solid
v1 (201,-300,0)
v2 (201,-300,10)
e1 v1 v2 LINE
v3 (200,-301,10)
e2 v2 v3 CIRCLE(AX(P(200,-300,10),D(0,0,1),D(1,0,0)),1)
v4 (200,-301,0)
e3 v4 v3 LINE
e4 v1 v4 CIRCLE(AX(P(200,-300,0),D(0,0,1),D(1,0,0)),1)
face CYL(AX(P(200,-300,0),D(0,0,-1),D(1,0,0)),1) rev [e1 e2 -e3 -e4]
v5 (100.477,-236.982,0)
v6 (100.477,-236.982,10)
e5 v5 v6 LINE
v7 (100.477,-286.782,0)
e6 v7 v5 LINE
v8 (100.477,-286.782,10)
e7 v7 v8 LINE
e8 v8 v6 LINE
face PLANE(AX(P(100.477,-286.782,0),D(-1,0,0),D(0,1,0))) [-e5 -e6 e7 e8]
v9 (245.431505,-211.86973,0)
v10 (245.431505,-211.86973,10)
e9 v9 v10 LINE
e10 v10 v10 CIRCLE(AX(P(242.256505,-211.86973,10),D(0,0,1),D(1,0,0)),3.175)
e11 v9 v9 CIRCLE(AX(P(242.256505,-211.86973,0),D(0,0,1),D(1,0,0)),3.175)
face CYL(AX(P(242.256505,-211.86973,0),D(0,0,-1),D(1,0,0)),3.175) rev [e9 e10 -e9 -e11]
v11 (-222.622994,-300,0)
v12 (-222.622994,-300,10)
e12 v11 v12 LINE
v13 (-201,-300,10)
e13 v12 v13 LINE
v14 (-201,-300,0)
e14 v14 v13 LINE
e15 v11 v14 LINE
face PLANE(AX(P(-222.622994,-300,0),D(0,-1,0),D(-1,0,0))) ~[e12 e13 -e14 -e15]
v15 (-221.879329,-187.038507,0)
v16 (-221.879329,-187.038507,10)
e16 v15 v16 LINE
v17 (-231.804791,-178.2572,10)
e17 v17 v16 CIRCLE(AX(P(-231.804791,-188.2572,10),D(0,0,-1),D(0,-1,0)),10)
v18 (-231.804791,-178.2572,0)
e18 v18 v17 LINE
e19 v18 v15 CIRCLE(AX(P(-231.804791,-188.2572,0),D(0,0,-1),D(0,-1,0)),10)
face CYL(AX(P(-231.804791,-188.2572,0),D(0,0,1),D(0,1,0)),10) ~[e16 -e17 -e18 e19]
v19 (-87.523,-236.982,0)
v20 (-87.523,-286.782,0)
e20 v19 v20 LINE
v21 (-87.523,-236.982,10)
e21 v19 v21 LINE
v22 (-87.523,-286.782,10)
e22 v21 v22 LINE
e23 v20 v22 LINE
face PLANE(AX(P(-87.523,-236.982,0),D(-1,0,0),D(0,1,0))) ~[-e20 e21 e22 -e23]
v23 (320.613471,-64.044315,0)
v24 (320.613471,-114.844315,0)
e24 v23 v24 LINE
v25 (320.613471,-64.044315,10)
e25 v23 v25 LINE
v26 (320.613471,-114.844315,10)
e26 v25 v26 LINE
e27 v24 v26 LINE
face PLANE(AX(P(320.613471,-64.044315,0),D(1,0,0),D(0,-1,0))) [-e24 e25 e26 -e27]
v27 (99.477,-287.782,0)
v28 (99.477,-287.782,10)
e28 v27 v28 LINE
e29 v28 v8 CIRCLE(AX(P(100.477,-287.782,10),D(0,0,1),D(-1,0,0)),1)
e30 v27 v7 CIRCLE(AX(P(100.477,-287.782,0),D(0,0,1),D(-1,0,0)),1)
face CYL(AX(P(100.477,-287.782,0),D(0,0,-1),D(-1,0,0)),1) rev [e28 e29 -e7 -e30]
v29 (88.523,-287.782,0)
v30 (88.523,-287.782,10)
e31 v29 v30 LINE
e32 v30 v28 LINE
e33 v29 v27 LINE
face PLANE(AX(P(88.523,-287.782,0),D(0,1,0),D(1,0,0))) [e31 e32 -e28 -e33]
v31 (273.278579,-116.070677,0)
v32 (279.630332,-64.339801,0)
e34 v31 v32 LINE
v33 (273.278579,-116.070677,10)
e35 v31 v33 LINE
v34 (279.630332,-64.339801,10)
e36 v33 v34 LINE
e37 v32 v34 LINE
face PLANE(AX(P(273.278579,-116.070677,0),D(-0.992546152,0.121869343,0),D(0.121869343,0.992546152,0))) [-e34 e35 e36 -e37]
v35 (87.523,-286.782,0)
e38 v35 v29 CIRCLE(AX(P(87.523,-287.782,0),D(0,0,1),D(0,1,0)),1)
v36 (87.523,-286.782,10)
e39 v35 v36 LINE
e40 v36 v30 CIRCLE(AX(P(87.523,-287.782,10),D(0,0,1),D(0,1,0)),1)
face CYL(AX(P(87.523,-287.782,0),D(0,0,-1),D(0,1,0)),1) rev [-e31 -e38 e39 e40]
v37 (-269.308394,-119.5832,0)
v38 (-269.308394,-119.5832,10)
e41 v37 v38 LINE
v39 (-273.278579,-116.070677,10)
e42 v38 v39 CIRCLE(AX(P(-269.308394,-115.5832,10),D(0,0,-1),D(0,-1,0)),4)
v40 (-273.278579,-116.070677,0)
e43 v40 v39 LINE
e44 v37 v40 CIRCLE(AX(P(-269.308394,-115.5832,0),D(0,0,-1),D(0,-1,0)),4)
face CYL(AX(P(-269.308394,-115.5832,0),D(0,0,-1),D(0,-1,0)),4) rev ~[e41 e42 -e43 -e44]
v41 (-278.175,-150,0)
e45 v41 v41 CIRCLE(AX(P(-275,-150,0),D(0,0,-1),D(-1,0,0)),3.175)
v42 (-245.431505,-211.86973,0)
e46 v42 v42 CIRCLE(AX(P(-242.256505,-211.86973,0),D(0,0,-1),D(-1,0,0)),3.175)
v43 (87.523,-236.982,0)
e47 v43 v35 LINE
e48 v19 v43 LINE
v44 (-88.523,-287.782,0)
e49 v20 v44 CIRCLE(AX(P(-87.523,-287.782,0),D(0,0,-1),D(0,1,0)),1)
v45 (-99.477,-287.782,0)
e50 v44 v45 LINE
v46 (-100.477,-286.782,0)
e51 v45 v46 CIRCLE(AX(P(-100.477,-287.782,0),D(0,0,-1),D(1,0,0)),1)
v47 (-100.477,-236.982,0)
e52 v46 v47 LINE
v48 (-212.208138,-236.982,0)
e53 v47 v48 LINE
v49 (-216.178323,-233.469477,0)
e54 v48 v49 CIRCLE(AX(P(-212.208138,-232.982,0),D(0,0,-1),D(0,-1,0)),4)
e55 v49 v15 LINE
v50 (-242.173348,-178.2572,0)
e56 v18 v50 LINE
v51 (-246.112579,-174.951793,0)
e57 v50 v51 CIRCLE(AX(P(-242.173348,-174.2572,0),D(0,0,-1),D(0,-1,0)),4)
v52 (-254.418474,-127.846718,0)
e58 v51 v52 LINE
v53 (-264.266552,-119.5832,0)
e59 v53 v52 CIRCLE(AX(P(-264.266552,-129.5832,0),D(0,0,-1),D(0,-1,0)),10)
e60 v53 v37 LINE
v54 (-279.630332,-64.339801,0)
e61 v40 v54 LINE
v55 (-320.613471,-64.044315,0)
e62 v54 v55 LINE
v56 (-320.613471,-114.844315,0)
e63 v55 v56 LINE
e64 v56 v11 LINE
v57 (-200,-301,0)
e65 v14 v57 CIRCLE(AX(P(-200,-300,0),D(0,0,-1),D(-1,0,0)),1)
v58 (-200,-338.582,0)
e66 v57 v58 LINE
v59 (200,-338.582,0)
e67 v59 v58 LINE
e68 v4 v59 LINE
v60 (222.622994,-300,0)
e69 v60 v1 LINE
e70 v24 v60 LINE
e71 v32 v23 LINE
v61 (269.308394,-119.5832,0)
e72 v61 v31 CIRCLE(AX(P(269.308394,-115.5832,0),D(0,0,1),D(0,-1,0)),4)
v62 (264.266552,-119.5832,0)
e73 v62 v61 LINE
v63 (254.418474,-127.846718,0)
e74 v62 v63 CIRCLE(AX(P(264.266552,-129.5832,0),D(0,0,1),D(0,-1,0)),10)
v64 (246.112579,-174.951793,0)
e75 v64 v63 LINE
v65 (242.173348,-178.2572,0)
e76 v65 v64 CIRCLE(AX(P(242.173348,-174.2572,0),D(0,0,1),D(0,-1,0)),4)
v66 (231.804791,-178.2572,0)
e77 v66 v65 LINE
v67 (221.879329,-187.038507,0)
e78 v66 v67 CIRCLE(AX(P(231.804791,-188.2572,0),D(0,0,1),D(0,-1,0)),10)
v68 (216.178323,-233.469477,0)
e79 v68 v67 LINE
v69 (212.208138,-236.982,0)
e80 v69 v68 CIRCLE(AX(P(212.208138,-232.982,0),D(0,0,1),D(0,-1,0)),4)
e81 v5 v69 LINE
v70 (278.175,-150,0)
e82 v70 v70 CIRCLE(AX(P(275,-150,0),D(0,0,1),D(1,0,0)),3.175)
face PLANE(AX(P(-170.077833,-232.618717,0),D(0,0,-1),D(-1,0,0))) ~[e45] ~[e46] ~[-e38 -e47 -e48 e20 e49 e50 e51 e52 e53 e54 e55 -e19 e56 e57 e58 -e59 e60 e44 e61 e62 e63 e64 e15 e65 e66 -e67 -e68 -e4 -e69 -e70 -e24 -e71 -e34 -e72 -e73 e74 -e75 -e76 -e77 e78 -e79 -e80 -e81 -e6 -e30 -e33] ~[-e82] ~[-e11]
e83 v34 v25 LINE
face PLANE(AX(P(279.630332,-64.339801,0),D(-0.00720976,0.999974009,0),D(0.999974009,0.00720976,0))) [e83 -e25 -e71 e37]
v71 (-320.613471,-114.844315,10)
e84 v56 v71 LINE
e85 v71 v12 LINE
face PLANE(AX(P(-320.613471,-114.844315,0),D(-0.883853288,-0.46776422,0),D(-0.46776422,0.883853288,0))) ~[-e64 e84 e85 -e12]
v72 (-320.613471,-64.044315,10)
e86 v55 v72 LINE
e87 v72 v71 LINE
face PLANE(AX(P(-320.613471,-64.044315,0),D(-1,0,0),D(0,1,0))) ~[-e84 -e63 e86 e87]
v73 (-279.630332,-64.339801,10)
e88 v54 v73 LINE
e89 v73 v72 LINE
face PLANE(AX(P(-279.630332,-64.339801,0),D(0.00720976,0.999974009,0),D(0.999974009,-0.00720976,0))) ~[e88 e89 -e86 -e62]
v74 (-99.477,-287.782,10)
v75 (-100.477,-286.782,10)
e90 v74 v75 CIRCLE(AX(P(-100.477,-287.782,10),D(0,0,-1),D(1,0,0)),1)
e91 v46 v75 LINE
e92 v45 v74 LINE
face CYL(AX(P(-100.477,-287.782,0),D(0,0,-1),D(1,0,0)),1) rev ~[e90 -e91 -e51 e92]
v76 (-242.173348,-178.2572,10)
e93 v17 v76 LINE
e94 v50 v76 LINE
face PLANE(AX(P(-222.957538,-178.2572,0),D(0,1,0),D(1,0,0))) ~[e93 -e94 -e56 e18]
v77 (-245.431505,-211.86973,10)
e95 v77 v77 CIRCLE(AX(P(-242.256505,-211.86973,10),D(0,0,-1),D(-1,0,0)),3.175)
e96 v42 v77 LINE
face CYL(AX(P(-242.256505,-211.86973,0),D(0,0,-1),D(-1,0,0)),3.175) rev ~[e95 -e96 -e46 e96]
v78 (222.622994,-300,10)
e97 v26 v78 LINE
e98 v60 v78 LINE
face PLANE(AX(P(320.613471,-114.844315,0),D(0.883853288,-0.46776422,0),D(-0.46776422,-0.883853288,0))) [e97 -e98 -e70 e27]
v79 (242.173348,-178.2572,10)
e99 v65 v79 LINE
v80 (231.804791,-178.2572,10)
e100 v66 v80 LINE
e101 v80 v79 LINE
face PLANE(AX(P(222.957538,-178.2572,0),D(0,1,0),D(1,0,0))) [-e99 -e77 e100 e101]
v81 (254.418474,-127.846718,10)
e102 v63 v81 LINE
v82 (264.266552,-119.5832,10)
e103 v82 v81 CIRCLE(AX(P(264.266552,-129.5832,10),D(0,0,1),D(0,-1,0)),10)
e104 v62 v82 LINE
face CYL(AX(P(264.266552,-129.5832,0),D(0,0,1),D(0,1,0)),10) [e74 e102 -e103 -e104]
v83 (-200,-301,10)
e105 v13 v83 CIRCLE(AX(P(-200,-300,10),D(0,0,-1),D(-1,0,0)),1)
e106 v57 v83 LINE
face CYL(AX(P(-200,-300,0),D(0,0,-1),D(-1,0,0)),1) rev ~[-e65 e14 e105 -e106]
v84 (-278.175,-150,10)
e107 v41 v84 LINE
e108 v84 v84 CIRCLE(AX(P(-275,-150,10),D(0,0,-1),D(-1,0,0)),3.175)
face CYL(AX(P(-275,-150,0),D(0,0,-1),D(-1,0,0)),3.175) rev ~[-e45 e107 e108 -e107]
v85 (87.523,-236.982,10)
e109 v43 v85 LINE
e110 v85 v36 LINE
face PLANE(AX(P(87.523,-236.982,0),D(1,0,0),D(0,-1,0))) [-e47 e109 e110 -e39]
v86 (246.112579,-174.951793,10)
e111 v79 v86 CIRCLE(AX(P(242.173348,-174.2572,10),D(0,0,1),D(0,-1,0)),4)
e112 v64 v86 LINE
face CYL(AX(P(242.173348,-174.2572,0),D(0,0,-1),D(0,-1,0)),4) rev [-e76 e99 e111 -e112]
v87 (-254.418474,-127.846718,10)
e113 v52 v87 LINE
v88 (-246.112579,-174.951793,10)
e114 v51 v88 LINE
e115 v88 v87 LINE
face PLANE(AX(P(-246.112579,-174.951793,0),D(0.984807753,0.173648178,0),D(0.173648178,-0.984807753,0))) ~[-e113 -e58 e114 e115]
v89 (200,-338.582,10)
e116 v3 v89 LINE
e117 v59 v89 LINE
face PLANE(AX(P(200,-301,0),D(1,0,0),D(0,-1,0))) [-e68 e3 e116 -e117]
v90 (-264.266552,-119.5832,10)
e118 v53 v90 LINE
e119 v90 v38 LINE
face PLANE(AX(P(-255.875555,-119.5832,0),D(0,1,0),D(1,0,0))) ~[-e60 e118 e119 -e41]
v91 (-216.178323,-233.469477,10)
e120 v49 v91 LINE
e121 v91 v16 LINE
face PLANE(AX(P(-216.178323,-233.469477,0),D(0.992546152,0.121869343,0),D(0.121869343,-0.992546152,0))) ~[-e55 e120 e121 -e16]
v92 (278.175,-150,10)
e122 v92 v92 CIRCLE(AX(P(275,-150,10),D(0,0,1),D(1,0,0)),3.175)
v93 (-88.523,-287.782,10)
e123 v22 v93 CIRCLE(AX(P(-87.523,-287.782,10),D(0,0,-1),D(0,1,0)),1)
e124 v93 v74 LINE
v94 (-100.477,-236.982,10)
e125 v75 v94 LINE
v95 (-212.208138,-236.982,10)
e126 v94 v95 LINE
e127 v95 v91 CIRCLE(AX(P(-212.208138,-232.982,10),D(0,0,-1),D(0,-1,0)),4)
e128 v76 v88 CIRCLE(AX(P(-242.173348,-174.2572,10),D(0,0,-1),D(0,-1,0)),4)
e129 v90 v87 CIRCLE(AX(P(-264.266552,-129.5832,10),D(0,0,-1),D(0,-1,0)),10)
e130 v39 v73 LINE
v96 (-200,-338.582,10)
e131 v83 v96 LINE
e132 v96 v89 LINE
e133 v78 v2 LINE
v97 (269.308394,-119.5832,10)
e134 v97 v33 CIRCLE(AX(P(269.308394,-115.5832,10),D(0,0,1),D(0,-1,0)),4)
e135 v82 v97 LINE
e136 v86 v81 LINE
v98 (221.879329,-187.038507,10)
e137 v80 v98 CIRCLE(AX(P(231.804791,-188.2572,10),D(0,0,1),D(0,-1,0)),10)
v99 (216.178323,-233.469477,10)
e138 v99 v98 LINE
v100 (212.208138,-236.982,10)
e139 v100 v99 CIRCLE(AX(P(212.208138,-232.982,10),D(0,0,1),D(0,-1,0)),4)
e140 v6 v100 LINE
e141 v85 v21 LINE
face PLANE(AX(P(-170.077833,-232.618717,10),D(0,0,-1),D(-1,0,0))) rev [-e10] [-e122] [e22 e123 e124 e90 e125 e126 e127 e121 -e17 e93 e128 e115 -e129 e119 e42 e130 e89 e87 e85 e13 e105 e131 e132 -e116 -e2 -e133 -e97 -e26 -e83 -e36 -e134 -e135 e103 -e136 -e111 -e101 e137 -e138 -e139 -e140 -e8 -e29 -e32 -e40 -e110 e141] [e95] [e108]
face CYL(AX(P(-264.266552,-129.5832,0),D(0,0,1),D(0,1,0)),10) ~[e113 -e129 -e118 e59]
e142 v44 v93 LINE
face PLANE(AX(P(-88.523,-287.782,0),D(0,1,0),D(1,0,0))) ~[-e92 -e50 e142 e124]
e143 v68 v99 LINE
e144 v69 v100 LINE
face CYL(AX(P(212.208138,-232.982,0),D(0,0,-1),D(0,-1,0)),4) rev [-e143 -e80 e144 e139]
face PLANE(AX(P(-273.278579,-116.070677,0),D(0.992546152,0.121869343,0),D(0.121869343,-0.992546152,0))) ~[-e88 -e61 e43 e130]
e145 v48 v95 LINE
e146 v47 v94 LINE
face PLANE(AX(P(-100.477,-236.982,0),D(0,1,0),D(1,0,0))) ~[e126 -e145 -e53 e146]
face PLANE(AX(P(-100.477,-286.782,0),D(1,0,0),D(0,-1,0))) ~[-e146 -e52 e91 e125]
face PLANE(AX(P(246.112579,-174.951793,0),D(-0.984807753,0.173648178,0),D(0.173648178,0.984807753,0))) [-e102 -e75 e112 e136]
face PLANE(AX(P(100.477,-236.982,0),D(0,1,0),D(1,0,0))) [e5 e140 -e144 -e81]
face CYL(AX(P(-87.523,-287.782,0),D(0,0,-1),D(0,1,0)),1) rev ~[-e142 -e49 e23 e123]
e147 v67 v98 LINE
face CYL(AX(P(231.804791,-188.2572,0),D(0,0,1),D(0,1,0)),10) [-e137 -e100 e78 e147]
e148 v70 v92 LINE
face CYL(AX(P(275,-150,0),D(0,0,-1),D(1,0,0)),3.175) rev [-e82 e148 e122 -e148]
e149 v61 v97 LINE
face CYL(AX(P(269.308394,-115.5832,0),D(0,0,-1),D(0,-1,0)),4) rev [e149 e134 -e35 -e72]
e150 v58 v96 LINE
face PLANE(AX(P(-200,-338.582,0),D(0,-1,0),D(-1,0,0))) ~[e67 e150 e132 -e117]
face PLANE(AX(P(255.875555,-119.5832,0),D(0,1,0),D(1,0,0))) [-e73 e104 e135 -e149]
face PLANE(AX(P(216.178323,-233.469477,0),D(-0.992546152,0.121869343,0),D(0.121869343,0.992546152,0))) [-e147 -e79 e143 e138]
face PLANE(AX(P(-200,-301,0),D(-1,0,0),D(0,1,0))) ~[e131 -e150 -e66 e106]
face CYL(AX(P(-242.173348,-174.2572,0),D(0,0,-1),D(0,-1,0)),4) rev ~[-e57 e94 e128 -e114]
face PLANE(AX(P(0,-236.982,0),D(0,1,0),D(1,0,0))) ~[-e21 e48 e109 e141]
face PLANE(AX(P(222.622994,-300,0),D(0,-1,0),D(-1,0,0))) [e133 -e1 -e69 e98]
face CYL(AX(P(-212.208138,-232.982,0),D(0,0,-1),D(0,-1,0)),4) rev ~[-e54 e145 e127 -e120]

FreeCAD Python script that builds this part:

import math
import FreeCAD as App
import Part
import Sketcher

V = App.Vector
Q = App.Units.Quantity


def edges_at(feature, points):
    """Names of the edges that pass closest to the given points."""
    edges = feature.Shape.Edges
    near = lambda p: min(range(len(edges)), key=lambda i: edges[i].distToShape(Part.Vertex(*p))[0])
    return sorted({f"Edge{near(p) + 1}" for p in points})

doc = App.newDocument("Part")
body = doc.addObject("PartDesign::Body", "Body")

sketch1 = doc.addObject("Sketcher::SketchObject", "Sketch")
body.addObject(sketch1)
sketch1.AttachmentSupport = (doc.XY_Plane, [""])
sketch1.MapMode = "FlatFace"
sketch1.addGeometry(Part.LineSegment(V(222.6, -300, 0), V(320.6, -114.8, 0)), False)
sketch1.addGeometry(Part.LineSegment(V(320.6, -114.8, 0), V(320.6, -64, 0)), False)
sketch1.addGeometry(Part.LineSegment(V(320.6, -64, 0), V(279.6, -64.3, 0)), False)
sketch1.addGeometry(Part.LineSegment(V(279.6, -64.3, 0), V(273.3, -116.1, 0)), False)
sketch1.addGeometry(Part.ArcOfCircle(Part.Circle(V(269.3, -115.6, 0), V(0, 0, 1), 4), math.radians(-90), math.radians(-7)), False)
sketch1.addGeometry(Part.LineSegment(V(269.3, -119.6, 0), V(255.9, -119.6, 0)), False)
sketch1.addGeometry(Part.LineSegment(V(255.9, -119.6, 0), V(246.1, -175, 0)), False)
sketch1.addGeometry(Part.ArcOfCircle(Part.Circle(V(242.2, -174.3, 0), V(0, 0, 1), 4), math.radians(-90), math.radians(-10)), False)
sketch1.addGeometry(Part.LineSegment(V(242.2, -178.3, 0), V(223, -178.3, 0)), False)
sketch1.addGeometry(Part.LineSegment(V(223, -178.3, 0), V(216.2, -233.5, 0)), False)
sketch1.addGeometry(Part.ArcOfCircle(Part.Circle(V(212.2, -233, 0), V(0, 0, 1), 4), math.radians(-90), math.radians(-7)), False)
sketch1.addGeometry(Part.LineSegment(V(212.2, -237, 0), V(100.5, -237, 0)), False)
sketch1.addGeometry(Part.LineSegment(V(100.5, -237, 0), V(100.5, -286.8, 0)), False)
sketch1.addGeometry(Part.ArcOfCircle(Part.Circle(V(100.5, -287.8, 0), V(0, 0, 1), 1), math.radians(180), math.radians(450)), False)
sketch1.addGeometry(Part.LineSegment(V(99.5, -287.8, 0), V(88.5, -287.8, 0)), False)
sketch1.addGeometry(Part.ArcOfCircle(Part.Circle(V(87.5, -287.8, 0), V(0, 0, 1), 1), math.radians(90), math.radians(360)), False)
sketch1.addGeometry(Part.LineSegment(V(87.5, -286.8, 0), V(87.5, -237, 0)), False)
sketch1.addGeometry(Part.LineSegment(V(87.5, -237, 0), V(0, -237, 0)), False)
sketch1.addGeometry(Part.LineSegment(V(0, -237, 0), V(0, -338.6, 0)), False)
sketch1.addGeometry(Part.LineSegment(V(0, -338.6, 0), V(200, -338.6, 0)), False)
sketch1.addGeometry(Part.LineSegment(V(200, -338.6, 0), V(200, -301, 0)), False)
sketch1.addGeometry(Part.ArcOfCircle(Part.Circle(V(200, -300, 0), V(0, 0, 1), 1), math.radians(0), math.radians(270)), False)
sketch1.addGeometry(Part.LineSegment(V(201, -300, 0), V(222.6, -300, 0)), False)
sketch1.addGeometry(Part.Circle(V(242.3, -211.9, 0), V(0, 0, 1), 3.2), False)
sketch1.addGeometry(Part.Circle(V(275, -150, 0), V(0, 0, 1), 3.2), False)
sketch1.addConstraint(Sketcher.Constraint("Coincident", 0, 2, 1, 1))
sketch1.addConstraint(Sketcher.Constraint("Coincident", 1, 2, 2, 1))
sketch1.addConstraint(Sketcher.Constraint("Coincident", 2, 2, 3, 1))
sketch1.addConstraint(Sketcher.Constraint("Tangent", 3, 2, 4, 2))
sketch1.addConstraint(Sketcher.Constraint("Tangent", 4, 1, 5, 1))
sketch1.addConstraint(Sketcher.Constraint("Coincident", 5, 2, 6, 1))
sketch1.addConstraint(Sketcher.Constraint("Tangent", 6, 2, 7, 2))
sketch1.addConstraint(Sketcher.Constraint("Tangent", 7, 1, 8, 1))
sketch1.addConstraint(Sketcher.Constraint("Coincident", 8, 2, 9, 1))
sketch1.addConstraint(Sketcher.Constraint("Tangent", 9, 2, 10, 2))
sketch1.addConstraint(Sketcher.Constraint("Tangent", 10, 1, 11, 1))
sketch1.addConstraint(Sketcher.Constraint("Coincident", 11, 2, 12, 1))
sketch1.addConstraint(Sketcher.Constraint("Coincident", 12, 2, 13, 2))
sketch1.addConstraint(Sketcher.Constraint("Coincident", 13, 1, 14, 1))
sketch1.addConstraint(Sketcher.Constraint("Coincident", 14, 2, 15, 2))
sketch1.addConstraint(Sketcher.Constraint("Coincident", 15, 1, 16, 1))
sketch1.addConstraint(Sketcher.Constraint("Coincident", 16, 2, 17, 1))
sketch1.addConstraint(Sketcher.Constraint("Coincident", 17, 2, 18, 1))
sketch1.addConstraint(Sketcher.Constraint("Coincident", 18, 2, 19, 1))
sketch1.addConstraint(Sketcher.Constraint("Coincident", 19, 2, 20, 1))
sketch1.addConstraint(Sketcher.Constraint("Coincident", 20, 2, 21, 2))
sketch1.addConstraint(Sketcher.Constraint("Coincident", 21, 1, 22, 1))
sketch1.addConstraint(Sketcher.Constraint("Coincident", 22, 2, 0, 1))
sketch1.addConstraint(Sketcher.Constraint("Vertical", 1))
sketch1.addConstraint(Sketcher.Constraint("Horizontal", 5))
sketch1.addConstraint(Sketcher.Constraint("Horizontal", 8))
sketch1.addConstraint(Sketcher.Constraint("Horizontal", 11))
sketch1.addConstraint(Sketcher.Constraint("Vertical", 12))
sketch1.addConstraint(Sketcher.Constraint("Horizontal", 14))
sketch1.addConstraint(Sketcher.Constraint("Vertical", 16))
sketch1.addConstraint(Sketcher.Constraint("Horizontal", 17))
sketch1.addConstraint(Sketcher.Constraint("Vertical", 18))
sketch1.addConstraint(Sketcher.Constraint("Horizontal", 19))
sketch1.addConstraint(Sketcher.Constraint("Vertical", 20))
sketch1.addConstraint(Sketcher.Constraint("Horizontal", 22))
sketch1.addConstraint(Sketcher.Constraint("Equal", 4, 7))
sketch1.addConstraint(Sketcher.Constraint("Equal", 7, 10))
sketch1.addConstraint(Sketcher.Constraint("Equal", 13, 15))
sketch1.addConstraint(Sketcher.Constraint("Equal", 15, 21))
sketch1.addConstraint(Sketcher.Constraint("Equal", 23, 24))
sketch1.addConstraint(Sketcher.Constraint("PointOnObject", 17, 2, -2))
sketch1.addConstraint(Sketcher.Constraint("Parallel", 3, 9))
sketch1.addConstraint(Sketcher.Constraint("Horizontal", 13, 3, 15, 3))
sketch1.addConstraint(Sketcher.Constraint("Horizontal", 15, 3, 13, 1))
sketch1.addConstraint(Sketcher.Constraint("Horizontal", 11, 2, 16, 2))
sketch1.addConstraint(Sketcher.Constraint("Vertical", 13, 3, 11, 2))
sketch1.addConstraint(Sketcher.Constraint("Vertical", 21, 3, 19, 2))
sketch1.addConstraint(Sketcher.Constraint("Radius", 4, 4.0))
sketch1.addConstraint(Sketcher.Constraint("Radius", 13, 1.0))
sketch1.addConstraint(Sketcher.Constraint("Diameter", 23, 6.35))
sketch1.addConstraint(Sketcher.Constraint("DistanceX", 19, 1, 19, 2, 200.0))
sketch1.addConstraint(Sketcher.Constraint("Angle", 3, Q("-97 deg")))
sketch1.addConstraint(Sketcher.Constraint("Angle", 6, Q("-100 deg")))
sketch1.addConstraint(Sketcher.Constraint("DistanceY", 1, 1, 1, 2, 50.8))
sketch1.addConstraint(Sketcher.Constraint("DistanceY", 12, 2, 12, 1, 49.8))
sketch1.addConstraint(Sketcher.Constraint("DistanceY", 18, 2, 18, 1, 101.6))
sketch1.addConstraint(Sketcher.Constraint("DistanceY", 21, 3, -1, 1, 300.0))
sketch1.addConstraint(Sketcher.Constraint("DistanceX", -1, 1, 24, 3, 275.0))
sketch1.addConstraint(Sketcher.Constraint("DistanceY", 24, 3, -1, 1, 150.0))
sketch1.addConstraint(Sketcher.Constraint("DistanceY", 21, 1, -1, 1, 300.0))
sketch1.addConstraint(Sketcher.Constraint("DistanceX", 15, 1, 14, 2, 1.0))
sketch1.addConstraint(Sketcher.Constraint("DistanceX", 14, 2, 14, 1, 10.954))
sketch1.addConstraint(Sketcher.Constraint("DistanceX", 17, 2, 17, 1, 87.523))
sketch1.addConstraint(Sketcher.Constraint("DistanceY", 20, 1, 20, 2, 37.582))
sketch1.addConstraint(Sketcher.Constraint("DistanceY", 7, 3, 4, 3, 58.674))
sketch1.addConstraint(Sketcher.Constraint("Distance", 0, 209.4869))
sketch1.addConstraint(Sketcher.Constraint("DistanceX", 5, 2, 5, 1, 13.432839))
sketch1.addConstraint(Sketcher.Constraint("DistanceX", 8, 2, 8, 1, 19.21581))
sketch1.addConstraint(Sketcher.Constraint("DistanceX", 11, 2, 11, 1, 111.731138))
sketch1.addConstraint(Sketcher.Constraint("DistanceY", 4, 3, -1, 1, 115.5832))
sketch1.addConstraint(Sketcher.Constraint("DistanceY", 2, 2, -1, 1, 64.339801))
sketch1.addConstraint(Sketcher.Constraint("DistanceX", 22, 1, 22, 2, 21.622994))
sketch1.addConstraint(Sketcher.Constraint("DistanceY", 23, 3, -1, 1, 211.86973))
sketch1.addConstraint(Sketcher.Constraint("DistanceX", -1, 1, 0, 2, 320.613471))
sketch1.addConstraint(Sketcher.Constraint("DistanceX", 23, 3, 4, 3, 27.05189))
pad1 = doc.addObject("PartDesign::Pad", "Pad")
body.addObject(pad1)
pad1.Profile = sketch1
pad1.Length = 10
doc.recompute()

fillet = doc.addObject("PartDesign::Fillet", "Fillet")
body.addObject(fillet)
fillet.Base = (pad1, edges_at(pad1, [(222.958, -178.257, 5), (255.876, -119.583, 5)]))
fillet.Radius = 10
doc.recompute()

mirrored = doc.addObject("PartDesign::Mirrored", "Mirrored")
body.addObject(mirrored)
mirrored.Originals = [pad1]
mirrored.MirrorPlane = (doc.YZ_Plane, [""])
body.Tip = mirrored
doc.recompute()

fillet2 = doc.addObject("PartDesign::Fillet", "Fillet001")
body.addObject(fillet2)
fillet2.Base = (mirrored, edges_at(mirrored, [(-222.958, -178.257, 5), (-255.876, -119.583, 5)]))
fillet2.Radius = 10

doc.recompute()
